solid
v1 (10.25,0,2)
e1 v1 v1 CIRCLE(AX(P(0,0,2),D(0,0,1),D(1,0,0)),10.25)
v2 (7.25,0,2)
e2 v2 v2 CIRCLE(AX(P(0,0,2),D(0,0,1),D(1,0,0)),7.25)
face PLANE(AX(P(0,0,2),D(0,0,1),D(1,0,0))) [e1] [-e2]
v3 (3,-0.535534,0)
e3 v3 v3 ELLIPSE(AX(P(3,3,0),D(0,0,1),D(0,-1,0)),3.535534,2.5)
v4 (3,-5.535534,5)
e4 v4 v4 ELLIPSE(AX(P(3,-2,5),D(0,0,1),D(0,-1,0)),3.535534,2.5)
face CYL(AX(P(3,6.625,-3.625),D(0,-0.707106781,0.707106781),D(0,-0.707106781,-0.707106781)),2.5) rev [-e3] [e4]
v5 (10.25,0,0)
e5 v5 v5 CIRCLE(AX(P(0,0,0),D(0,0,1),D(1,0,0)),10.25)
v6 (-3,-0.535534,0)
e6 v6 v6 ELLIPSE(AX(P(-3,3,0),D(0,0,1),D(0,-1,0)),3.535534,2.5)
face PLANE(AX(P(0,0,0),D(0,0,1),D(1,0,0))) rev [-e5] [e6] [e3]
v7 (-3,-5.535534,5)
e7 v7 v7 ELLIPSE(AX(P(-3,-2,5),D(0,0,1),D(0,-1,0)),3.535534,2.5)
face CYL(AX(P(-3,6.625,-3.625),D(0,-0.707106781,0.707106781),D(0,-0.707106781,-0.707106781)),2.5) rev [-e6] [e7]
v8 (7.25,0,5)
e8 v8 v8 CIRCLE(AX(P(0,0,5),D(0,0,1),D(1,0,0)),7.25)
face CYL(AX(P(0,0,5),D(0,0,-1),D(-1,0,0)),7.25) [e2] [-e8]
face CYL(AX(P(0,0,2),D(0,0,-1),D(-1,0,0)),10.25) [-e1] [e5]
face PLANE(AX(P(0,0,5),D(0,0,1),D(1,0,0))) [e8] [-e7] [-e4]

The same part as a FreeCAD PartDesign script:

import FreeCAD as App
import Part
import Sketcher
from FreeCAD import Vector
Q = App.Units.Quantity

doc = App.newDocument("Part")
body = doc.addObject("PartDesign::Body", "Body")

sketch1 = body.newObject("Sketcher::SketchObject", "Sketch")
sketch1.AttachmentSupport = (doc.getObject("XY_Plane"), [""])
sketch1.MapMode = "FlatFace"
sketch1.addGeometry(Part.Circle(Vector(0, 0, 0), Vector(0, 0, 1), 10), False)
sketch1.addConstraint(Sketcher.Constraint("Coincident", 0, 3, -1, 1))
sketch1.addConstraint(Sketcher.Constraint("Diameter", 0, Q("20.5 mm")))
pad1 = body.newObject("PartDesign::Pad", "Pad")
pad1.Profile = sketch1
pad1.Length = 2

sketch2 = body.newObject("Sketcher::SketchObject", "Sketch001")
sketch2.AttachmentSupport = (doc.getObject("XY_Plane"), [""])
sketch2.MapMode = "FlatFace"
sketch2.AttachmentOffset = App.Placement(Vector(0, 0, 2), App.Rotation())
sketch2.addGeometry(Part.Circle(Vector(0, 0, 0), Vector(0, 0, 1), 7), False)
sketch2.addConstraint(Sketcher.Constraint("Coincident", 0, 3, -1, 1))
sketch2.addConstraint(Sketcher.Constraint("Diameter", 0, Q("14.5 mm")))
pad2 = body.newObject("PartDesign::Pad", "Pad001")
pad2.Profile = sketch2
pad2.Length = 3

sketch3 = body.newObject("Sketcher::SketchObject", "Sketch002")
sketch3.Placement = App.Placement(Vector(0, -0.042117, 2.457883), App.Rotation(Vector(1, 0, 0), Vector(0, 0.707106781, 0.707106781), Vector(0, -0.707106781, 0.707106781), "ZXY"))
sketch3.addGeometry(Part.Circle(Vector(-3, 0.4, 0), Vector(0, 0, 1), 2.5), False)
sketch3.addGeometry(Part.Circle(Vector(3, 0.4, 0), Vector(0, 0, 1), 2.5), False)
sketch3.addConstraint(Sketcher.Constraint("Equal", 0, 1))
sketch3.addConstraint(Sketcher.Constraint("Symmetric", 0, 3, 1, 3, -2))
sketch3.addConstraint(Sketcher.Constraint("Diameter", 0, Q("5 mm")))
sketch3.addConstraint(Sketcher.Constraint("DistanceX", 0, 3, -1, 1, Q("3 mm")))
sketch3.addConstraint(Sketcher.Constraint("DistanceY", -1, 1, 0, 3, Q("0.413116 mm")))
pocket1 = body.newObject("PartDesign::Pocket", "Pocket")
pocket1.Profile = sketch3
pocket1.Type = "ThroughAll"
pocket1.Midplane = True

doc.recompute()
